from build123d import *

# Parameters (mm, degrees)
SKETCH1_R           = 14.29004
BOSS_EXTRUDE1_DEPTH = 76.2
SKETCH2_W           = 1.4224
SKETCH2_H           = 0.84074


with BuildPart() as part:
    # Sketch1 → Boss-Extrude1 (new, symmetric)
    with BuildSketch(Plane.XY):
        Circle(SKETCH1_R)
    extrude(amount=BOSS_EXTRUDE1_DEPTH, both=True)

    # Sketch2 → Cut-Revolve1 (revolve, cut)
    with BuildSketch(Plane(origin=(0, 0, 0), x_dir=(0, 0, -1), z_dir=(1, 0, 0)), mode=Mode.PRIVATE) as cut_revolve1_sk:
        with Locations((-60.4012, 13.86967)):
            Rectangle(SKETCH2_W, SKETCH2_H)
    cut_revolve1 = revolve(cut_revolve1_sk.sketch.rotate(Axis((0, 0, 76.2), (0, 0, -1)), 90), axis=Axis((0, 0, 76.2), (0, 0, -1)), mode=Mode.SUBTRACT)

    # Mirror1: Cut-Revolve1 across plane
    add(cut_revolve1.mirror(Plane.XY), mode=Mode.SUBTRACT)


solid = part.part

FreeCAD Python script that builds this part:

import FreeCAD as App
import Part
import Sketcher
from FreeCAD import Vector
Q = App.Units.Quantity


def add_polygon(sketch, points):
    """Adds a closed chain of lines whose ends are joined by coincident constraints."""
    first, n = sketch.GeometryCount, len(points)
    for a, b in zip(points, points[1:] + points[:1]):
        sketch.addGeometry(Part.LineSegment(App.Vector(*a, 0), App.Vector(*b, 0)), False)
    for i in range(n):
        sketch.addConstraint(Sketcher.Constraint("Coincident", first + i, 2, first + (i + 1) % n, 1))

doc = App.newDocument("Part")
body = doc.addObject("PartDesign::Body", "Body")

# Sketch on XY plane
sketch1 = doc.addObject("Sketcher::SketchObject", "Sketch")
body.addObject(sketch1)
sketch1.AttachmentSupport = (doc.XY_Plane, [""])
sketch1.MapMode = "FlatFace"
sketch1.addGeometry(Part.Circle(Vector(0, 0, 0), Vector(0, 0, 1), 14), False)
sketch1.addConstraint(Sketcher.Constraint("Coincident", 0, 3, -1, 1))
sketch1.addConstraint(Sketcher.Constraint("Diameter", 0, Q("1.1252 in")))
pad1 = doc.addObject("PartDesign::Pad", "Pad")
body.addObject(pad1)
pad1.Profile = sketch1
pad1.Length = Q("6 in")
pad1.Midplane = True

# Sketch on YZ plane
sketch2 = doc.addObject("Sketcher::SketchObject", "Sketch001")
body.addObject(sketch2)
sketch2.AttachmentSupport = (doc.YZ_Plane, [""])
sketch2.MapMode = "FlatFace"
add_polygon(sketch2, [(14.3, 61.1), (13.4, 61.1), (13.4, 59.7), (14.3, 59.7)])  # lines 0-3
sketch2.addConstraint(Sketcher.Constraint("Horizontal", 0))
sketch2.addConstraint(Sketcher.Constraint("Vertical", 1))
sketch2.addConstraint(Sketcher.Constraint("Horizontal", 2))
sketch2.addConstraint(Sketcher.Constraint("Vertical", 3))
sketch2.addConstraint(Sketcher.Constraint("DistanceY", 1, 2, 1, 1, Q("0.056 in")))
sketch2.addConstraint(Sketcher.Constraint("DistanceY", -1, 1, 1, 2, Q("2.35 in")))
sketch2.addConstraint(Sketcher.Constraint("DistanceX", 0, 2, 0, 1, Q("0.0331 in")))
sketch2.addConstraint(Sketcher.Constraint("DistanceX", -1, 1, 0, 2, Q("0.5295 in")))
groove = doc.addObject("PartDesign::Groove", "Groove")
body.addObject(groove)
groove.Profile = sketch2
groove.ReferenceAxis = (sketch2, ["V_Axis"])
groove.Angle = 360
doc.recompute()

mirrored = doc.addObject("PartDesign::Mirrored", "Mirrored")
body.addObject(mirrored)
mirrored.Originals = [groove]
mirrored.MirrorPlane = (doc.XY_Plane, [""])
body.Tip = mirrored

doc.recompute()
